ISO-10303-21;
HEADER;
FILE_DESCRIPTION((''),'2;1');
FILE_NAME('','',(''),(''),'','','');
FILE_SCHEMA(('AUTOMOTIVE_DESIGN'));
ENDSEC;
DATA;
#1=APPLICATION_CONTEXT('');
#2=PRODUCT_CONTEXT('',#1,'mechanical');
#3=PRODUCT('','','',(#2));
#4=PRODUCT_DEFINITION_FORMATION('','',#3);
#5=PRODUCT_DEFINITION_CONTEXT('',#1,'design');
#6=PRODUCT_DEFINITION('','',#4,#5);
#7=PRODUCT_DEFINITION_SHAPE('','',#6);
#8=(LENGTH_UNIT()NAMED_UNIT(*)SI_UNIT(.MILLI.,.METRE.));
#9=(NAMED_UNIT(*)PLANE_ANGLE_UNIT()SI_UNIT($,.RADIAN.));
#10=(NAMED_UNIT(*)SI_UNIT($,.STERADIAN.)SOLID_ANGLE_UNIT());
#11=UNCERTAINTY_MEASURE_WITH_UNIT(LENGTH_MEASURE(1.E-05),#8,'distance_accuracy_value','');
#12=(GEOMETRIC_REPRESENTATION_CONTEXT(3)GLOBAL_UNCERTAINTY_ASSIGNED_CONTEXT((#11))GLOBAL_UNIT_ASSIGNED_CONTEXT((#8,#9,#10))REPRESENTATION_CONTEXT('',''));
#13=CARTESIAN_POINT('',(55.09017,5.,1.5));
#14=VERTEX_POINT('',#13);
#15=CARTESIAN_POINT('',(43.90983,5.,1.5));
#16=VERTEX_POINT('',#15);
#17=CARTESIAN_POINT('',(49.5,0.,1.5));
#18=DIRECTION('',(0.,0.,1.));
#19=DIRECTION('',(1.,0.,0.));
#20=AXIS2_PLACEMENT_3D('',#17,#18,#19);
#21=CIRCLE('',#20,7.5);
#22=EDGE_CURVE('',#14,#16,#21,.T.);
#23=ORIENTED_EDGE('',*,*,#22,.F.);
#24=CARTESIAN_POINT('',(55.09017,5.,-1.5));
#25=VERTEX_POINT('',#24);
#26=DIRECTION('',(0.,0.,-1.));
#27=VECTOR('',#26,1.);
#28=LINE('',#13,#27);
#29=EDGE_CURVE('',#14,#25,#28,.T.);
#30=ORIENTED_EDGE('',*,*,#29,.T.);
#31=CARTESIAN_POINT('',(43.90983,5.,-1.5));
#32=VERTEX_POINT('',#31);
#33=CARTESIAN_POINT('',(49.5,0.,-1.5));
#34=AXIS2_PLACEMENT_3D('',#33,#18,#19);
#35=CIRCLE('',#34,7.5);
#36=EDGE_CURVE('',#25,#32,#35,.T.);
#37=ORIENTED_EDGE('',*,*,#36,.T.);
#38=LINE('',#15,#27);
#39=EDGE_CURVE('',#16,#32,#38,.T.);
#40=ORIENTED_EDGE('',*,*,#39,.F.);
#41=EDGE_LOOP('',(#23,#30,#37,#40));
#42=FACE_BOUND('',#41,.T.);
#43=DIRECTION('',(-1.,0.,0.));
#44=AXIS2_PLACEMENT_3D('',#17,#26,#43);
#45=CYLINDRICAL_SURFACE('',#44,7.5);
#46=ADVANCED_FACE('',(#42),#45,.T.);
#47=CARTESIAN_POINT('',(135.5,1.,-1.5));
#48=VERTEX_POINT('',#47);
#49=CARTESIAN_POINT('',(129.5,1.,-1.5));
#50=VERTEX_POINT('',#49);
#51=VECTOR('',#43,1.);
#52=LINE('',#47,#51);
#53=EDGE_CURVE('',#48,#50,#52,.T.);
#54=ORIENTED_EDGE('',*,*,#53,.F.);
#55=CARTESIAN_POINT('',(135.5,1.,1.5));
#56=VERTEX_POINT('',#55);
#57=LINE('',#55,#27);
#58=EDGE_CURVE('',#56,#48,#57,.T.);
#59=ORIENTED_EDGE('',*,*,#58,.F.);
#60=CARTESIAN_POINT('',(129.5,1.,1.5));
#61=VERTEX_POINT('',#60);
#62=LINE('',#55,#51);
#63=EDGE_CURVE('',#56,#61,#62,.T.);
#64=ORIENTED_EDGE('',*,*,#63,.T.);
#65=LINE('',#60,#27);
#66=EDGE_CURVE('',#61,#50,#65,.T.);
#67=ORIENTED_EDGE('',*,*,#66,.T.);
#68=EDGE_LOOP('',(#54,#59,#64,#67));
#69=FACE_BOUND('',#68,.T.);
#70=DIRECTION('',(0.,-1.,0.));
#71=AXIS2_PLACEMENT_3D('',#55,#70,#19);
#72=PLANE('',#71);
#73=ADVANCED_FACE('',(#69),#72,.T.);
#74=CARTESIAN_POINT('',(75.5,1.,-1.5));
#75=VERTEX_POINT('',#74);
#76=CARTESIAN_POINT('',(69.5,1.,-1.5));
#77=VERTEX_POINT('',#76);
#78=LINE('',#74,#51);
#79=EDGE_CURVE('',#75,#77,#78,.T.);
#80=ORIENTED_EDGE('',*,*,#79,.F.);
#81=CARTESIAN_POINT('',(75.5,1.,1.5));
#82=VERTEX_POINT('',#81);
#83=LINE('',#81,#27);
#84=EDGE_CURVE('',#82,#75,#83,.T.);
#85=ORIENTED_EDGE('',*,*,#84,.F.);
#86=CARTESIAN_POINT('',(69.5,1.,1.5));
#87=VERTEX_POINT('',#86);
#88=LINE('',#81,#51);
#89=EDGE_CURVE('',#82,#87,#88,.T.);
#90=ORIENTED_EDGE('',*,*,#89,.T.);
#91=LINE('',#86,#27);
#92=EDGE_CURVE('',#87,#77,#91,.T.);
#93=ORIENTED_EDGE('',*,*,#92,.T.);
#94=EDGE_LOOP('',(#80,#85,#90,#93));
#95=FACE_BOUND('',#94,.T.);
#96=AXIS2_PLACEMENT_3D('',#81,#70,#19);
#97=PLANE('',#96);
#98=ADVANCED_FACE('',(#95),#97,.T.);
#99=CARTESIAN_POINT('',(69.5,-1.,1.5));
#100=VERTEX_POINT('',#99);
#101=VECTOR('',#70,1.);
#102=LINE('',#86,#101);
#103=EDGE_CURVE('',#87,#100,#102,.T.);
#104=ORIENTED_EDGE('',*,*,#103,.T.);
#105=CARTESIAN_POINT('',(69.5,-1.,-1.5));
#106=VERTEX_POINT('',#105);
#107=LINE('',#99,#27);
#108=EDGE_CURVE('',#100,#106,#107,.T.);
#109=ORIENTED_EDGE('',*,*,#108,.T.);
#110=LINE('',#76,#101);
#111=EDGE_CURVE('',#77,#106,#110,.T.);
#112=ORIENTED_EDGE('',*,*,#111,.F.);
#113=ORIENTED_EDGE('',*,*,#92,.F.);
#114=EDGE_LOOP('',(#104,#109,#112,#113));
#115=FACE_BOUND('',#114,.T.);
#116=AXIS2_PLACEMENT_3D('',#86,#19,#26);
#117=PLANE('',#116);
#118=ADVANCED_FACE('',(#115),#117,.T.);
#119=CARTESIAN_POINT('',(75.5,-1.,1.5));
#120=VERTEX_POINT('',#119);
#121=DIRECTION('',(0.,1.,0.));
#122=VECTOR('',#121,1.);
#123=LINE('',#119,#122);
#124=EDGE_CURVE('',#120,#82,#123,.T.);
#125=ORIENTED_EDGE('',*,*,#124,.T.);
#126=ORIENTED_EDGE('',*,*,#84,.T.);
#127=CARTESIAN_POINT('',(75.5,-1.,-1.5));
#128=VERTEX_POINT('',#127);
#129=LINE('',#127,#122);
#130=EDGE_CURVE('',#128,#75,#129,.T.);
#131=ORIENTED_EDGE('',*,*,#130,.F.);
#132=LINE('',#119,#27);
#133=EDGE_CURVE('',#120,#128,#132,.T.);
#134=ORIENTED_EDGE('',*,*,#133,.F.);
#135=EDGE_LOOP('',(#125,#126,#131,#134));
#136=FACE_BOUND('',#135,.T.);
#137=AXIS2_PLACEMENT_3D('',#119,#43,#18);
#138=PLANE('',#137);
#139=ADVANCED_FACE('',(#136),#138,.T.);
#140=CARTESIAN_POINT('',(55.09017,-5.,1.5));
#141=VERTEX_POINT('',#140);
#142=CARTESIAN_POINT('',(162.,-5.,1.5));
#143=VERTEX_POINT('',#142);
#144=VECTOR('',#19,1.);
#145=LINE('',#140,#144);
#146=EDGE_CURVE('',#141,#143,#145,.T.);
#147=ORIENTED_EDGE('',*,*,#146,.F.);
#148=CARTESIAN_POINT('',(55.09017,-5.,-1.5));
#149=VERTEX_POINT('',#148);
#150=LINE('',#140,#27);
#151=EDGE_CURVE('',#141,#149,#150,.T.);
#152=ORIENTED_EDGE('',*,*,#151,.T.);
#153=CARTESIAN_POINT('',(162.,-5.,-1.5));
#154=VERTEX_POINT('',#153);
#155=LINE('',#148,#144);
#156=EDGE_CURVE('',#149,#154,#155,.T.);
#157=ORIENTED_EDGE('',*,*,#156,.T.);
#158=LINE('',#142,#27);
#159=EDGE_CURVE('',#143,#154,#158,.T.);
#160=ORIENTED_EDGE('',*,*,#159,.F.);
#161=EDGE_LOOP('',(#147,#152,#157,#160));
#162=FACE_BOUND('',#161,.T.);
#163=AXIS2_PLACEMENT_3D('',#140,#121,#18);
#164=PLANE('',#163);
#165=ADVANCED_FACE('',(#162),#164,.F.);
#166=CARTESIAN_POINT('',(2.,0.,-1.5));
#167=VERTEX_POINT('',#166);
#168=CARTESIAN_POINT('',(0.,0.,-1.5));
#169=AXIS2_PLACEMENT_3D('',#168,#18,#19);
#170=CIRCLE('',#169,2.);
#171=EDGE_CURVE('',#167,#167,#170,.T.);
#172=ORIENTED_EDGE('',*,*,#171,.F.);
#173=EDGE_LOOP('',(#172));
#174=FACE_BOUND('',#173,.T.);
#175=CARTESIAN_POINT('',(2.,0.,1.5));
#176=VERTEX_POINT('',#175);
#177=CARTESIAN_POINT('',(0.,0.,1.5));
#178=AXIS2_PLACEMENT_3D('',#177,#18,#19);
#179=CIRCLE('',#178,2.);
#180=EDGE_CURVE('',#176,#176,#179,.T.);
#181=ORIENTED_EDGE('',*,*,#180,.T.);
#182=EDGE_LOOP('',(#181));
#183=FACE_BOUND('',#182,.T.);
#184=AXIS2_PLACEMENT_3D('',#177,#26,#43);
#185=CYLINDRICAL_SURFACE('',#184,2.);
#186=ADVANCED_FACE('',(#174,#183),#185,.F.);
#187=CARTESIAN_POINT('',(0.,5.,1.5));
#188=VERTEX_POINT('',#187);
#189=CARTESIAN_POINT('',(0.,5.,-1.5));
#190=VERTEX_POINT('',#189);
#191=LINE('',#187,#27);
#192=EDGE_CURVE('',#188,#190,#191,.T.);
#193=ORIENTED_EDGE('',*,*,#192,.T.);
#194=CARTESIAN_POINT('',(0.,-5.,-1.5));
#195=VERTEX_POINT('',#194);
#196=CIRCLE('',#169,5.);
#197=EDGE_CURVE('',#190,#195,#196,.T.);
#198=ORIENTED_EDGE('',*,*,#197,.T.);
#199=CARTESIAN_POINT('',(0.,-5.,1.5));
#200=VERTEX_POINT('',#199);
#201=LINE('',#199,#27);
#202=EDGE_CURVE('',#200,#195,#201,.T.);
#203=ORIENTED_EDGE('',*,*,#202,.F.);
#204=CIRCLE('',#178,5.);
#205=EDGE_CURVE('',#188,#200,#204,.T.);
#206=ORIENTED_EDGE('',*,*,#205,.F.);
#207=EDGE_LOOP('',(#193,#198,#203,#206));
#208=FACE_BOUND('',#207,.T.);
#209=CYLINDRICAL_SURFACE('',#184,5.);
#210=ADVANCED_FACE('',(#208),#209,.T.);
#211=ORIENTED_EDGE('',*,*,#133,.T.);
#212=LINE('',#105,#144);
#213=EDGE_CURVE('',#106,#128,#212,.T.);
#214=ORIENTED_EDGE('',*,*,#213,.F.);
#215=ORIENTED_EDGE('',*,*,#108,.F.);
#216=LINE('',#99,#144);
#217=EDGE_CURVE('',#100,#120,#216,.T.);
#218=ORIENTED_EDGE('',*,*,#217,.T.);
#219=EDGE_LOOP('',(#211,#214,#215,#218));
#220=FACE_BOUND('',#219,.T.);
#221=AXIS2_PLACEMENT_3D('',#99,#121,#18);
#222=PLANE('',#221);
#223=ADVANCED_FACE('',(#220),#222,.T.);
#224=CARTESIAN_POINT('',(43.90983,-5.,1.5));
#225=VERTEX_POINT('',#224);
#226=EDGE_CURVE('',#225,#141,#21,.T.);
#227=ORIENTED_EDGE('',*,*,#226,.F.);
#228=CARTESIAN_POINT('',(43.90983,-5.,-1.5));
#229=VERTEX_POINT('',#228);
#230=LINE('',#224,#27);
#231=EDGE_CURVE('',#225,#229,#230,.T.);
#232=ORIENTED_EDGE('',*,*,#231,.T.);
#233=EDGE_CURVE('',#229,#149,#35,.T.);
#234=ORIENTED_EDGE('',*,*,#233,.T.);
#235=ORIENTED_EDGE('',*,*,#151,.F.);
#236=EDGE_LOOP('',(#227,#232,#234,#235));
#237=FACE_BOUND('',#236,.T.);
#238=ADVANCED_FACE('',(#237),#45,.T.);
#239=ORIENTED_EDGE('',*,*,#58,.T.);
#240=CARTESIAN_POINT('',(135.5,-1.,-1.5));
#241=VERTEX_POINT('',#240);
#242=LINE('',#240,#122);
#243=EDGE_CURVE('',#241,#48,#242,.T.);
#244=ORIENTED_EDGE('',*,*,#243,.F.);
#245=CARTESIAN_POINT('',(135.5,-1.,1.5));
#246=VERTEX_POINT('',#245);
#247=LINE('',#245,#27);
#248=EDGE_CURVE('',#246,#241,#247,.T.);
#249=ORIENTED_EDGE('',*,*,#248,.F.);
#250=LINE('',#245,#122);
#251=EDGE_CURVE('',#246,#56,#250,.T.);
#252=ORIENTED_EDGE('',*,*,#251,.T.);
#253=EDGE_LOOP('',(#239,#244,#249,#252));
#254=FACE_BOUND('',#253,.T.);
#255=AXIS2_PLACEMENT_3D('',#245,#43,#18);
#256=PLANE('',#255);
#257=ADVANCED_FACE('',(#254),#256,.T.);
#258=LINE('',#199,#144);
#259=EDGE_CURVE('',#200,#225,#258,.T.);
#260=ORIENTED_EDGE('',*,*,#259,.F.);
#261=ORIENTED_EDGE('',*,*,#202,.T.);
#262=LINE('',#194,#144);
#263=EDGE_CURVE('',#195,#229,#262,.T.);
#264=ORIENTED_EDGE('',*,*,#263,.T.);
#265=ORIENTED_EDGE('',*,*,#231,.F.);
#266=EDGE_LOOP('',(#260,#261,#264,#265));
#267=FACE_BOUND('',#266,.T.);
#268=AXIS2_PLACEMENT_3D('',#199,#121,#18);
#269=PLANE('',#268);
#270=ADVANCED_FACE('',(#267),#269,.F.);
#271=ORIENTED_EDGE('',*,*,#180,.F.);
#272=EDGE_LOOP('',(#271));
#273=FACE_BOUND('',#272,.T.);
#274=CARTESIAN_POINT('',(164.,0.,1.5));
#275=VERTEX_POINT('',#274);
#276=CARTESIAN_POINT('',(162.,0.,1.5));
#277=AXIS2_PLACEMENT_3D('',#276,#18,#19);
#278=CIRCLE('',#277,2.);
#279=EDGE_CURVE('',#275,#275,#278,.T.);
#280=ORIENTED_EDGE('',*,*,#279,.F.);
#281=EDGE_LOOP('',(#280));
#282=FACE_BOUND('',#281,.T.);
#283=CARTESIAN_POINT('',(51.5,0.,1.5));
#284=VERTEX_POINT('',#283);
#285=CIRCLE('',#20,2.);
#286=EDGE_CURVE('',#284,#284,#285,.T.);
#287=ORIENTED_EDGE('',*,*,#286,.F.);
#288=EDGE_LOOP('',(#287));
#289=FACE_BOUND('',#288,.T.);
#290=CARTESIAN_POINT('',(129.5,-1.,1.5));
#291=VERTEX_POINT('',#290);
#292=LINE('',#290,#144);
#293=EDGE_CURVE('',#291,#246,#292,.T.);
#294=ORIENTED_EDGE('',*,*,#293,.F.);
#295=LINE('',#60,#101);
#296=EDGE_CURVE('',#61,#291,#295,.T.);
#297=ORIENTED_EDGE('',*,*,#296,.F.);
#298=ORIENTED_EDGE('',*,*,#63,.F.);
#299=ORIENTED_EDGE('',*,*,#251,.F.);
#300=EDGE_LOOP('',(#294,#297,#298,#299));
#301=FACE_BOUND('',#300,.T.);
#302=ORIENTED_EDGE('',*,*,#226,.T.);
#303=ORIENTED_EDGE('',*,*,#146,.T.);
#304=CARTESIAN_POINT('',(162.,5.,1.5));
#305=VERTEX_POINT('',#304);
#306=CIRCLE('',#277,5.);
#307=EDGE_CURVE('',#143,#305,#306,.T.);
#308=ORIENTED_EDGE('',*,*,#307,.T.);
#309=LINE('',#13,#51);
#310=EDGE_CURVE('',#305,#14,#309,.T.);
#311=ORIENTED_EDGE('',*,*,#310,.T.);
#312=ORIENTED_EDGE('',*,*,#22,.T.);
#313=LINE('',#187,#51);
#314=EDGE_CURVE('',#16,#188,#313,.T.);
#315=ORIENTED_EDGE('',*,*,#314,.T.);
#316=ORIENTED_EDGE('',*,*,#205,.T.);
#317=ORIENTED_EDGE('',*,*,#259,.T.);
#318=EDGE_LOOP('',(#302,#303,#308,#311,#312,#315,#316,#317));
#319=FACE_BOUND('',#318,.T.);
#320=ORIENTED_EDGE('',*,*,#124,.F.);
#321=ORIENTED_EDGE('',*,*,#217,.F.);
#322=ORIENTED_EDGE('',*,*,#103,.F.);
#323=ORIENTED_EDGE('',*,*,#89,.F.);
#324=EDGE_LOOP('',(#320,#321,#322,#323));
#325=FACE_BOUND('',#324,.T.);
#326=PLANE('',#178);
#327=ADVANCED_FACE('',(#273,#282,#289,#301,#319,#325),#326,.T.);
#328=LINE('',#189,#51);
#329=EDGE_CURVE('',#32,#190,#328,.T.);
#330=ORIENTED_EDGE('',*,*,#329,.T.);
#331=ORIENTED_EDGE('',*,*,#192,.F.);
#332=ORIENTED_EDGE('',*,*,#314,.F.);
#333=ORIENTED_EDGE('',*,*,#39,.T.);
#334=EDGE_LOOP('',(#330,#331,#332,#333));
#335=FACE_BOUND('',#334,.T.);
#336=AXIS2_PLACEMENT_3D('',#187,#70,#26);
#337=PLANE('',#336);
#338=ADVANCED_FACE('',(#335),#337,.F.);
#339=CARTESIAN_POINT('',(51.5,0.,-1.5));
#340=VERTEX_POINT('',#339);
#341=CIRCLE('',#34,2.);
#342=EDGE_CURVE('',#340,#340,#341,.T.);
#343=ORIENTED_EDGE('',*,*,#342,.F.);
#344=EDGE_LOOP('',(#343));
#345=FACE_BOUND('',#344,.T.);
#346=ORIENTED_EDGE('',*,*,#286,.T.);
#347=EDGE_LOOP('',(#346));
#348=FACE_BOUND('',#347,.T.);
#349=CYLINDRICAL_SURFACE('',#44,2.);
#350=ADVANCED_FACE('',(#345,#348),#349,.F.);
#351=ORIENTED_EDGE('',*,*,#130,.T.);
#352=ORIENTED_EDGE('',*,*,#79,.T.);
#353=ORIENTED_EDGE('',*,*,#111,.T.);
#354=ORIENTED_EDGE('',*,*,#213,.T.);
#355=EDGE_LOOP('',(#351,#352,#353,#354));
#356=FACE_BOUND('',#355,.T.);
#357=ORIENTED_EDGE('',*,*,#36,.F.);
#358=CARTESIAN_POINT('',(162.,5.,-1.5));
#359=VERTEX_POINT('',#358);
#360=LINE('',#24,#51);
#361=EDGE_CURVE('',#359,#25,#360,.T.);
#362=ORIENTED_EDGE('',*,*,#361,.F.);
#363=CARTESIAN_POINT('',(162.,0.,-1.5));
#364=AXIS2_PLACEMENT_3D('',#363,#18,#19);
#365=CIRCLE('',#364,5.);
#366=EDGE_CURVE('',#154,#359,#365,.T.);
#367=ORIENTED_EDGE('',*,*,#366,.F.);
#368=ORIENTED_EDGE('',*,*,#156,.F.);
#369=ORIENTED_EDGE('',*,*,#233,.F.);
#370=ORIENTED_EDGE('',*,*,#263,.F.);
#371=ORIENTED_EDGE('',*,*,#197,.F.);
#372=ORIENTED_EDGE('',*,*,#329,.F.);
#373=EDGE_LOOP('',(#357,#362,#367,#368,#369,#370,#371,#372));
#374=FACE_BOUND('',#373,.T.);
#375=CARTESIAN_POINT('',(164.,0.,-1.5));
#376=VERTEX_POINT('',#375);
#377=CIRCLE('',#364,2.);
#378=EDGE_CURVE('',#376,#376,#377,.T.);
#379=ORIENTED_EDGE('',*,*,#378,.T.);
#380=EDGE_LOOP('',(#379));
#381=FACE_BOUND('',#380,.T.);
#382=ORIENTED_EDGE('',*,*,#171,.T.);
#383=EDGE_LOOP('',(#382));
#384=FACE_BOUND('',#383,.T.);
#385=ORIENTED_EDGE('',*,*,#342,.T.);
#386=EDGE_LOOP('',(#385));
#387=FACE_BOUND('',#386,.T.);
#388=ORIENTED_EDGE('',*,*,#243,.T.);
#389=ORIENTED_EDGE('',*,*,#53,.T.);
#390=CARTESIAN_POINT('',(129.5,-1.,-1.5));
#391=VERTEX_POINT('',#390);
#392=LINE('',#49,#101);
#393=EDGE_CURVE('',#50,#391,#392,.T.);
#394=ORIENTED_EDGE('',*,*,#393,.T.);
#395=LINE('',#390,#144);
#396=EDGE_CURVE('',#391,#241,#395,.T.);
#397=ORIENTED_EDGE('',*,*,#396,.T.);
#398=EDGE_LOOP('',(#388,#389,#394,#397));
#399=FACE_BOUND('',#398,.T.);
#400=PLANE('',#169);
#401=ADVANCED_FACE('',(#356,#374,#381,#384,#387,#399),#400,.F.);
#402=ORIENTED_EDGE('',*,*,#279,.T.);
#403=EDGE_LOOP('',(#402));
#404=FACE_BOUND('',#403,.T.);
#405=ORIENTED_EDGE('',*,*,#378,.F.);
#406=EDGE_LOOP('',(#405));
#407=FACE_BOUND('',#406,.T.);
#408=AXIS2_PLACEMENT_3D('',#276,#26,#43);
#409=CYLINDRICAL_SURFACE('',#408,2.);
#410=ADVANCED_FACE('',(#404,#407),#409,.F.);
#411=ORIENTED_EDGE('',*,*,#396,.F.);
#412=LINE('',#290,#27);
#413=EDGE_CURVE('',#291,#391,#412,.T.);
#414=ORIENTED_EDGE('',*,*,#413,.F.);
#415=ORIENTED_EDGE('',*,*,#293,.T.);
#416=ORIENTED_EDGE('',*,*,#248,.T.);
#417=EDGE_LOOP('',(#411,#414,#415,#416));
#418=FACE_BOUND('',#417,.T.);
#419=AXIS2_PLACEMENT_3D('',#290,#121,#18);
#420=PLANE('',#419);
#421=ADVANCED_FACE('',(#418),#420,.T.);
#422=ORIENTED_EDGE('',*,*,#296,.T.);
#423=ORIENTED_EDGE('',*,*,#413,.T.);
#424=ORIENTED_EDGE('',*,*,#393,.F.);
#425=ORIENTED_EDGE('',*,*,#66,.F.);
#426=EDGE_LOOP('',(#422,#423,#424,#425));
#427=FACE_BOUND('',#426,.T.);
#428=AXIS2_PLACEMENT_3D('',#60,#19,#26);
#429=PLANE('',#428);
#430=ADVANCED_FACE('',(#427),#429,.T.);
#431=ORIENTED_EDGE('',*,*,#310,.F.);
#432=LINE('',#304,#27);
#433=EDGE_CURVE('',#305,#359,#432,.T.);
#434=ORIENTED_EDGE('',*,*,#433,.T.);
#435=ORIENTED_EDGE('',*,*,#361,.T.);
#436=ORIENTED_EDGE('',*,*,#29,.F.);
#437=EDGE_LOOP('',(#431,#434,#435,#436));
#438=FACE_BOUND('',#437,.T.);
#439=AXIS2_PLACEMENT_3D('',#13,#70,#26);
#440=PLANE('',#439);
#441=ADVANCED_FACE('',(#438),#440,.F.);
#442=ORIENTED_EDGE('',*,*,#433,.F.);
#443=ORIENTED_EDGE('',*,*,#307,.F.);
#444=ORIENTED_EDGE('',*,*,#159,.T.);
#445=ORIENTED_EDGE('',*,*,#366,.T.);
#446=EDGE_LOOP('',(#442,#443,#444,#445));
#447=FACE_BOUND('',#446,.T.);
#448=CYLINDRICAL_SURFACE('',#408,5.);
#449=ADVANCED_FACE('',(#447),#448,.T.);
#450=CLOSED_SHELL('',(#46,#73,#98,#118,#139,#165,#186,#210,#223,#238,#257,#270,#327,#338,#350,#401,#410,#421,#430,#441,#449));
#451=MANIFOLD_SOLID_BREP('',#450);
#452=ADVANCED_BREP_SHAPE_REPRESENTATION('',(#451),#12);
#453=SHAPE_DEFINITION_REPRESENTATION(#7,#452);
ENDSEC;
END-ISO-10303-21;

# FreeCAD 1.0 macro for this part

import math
import FreeCAD as App
import Part
import Sketcher
Q = App.Units.Quantity


def add_polygon(sketch, points):
    """Adds a closed chain of lines whose ends are joined by coincident constraints."""
    first, n = sketch.GeometryCount, len(points)
    for a, b in zip(points, points[1:] + points[:1]):
        sketch.addGeometry(Part.LineSegment(App.Vector(*a, 0), App.Vector(*b, 0)), False)
    for i in range(n):
        sketch.addConstraint(Sketcher.Constraint("Coincident", first + i, 2, first + (i + 1) % n, 1))

doc = App.newDocument("Part")
body = doc.addObject("PartDesign::Body", "Body")

# Sketch on XY plane
sketch1 = body.newObject("Sketcher::SketchObject", "Sketch")
sketch1.AttachmentSupport = (doc.getObject("XY_Plane"), [""])
sketch1.MapMode = "FlatFace"
sketch1.addGeometry(Part.LineSegment(App.Vector(43.9, 5, 0), App.Vector(0, 5, 0)), False)  # 0
sketch1.addGeometry(Part.ArcOfCircle(Part.Circle(App.Vector(0, 0, 0), App.Vector(0, 0, 1), 5), math.radians(90), math.radians(270)), False)  # 1
sketch1.addGeometry(Part.LineSegment(App.Vector(0, -5, 0), App.Vector(43.9, -5, 0)), False)  # 2
sketch1.addGeometry(Part.ArcOfCircle(Part.Circle(App.Vector(49.5, 0, 0), App.Vector(0, 0, 1), 7.5), math.radians(-138), math.radians(-42)), False)  # 3
sketch1.addGeometry(Part.LineSegment(App.Vector(55.1, -5, 0), App.Vector(162, -5, 0)), False)  # 4
sketch1.addGeometry(Part.ArcOfCircle(Part.Circle(App.Vector(162, 0, 0), App.Vector(0, 0, 1), 5), math.radians(-90), math.radians(90)), False)  # 5
sketch1.addGeometry(Part.LineSegment(App.Vector(162, 5, 0), App.Vector(55.1, 5, 0)), False)  # 6
sketch1.addGeometry(Part.ArcOfCircle(Part.Circle(App.Vector(49.5, 0, 0), App.Vector(0, 0, 1), 7.5), math.radians(42), math.radians(138)), False)  # 7
sketch1.addGeometry(Part.Circle(App.Vector(162, 0, 0), App.Vector(0, 0, 1), 2), False)  # 8
add_polygon(sketch1, [(129.5, -1), (129.5, 1), (135.5, 1), (135.5, -1)])  # lines 9-12
add_polygon(sketch1, [(69.5, -1), (69.5, 1), (75.5, 1), (75.5, -1)])  # lines 13-16
sketch1.addGeometry(Part.Circle(App.Vector(49.5, 0, 0), App.Vector(0, 0, 1), 2), False)  # 17
sketch1.addGeometry(Part.Circle(App.Vector(0, 0, 0), App.Vector(0, 0, 1), 2), False)  # 18
sketch1.addConstraint(Sketcher.Constraint("Tangent", 0, 2, 1, 1))
sketch1.addConstraint(Sketcher.Constraint("Tangent", 1, 2, 2, 1))
sketch1.addConstraint(Sketcher.Constraint("Coincident", 2, 2, 3, 1))
sketch1.addConstraint(Sketcher.Constraint("Coincident", 3, 2, 4, 1))
sketch1.addConstraint(Sketcher.Constraint("Tangent", 4, 2, 5, 1))
sketch1.addConstraint(Sketcher.Constraint("Tangent", 5, 2, 6, 1))
sketch1.addConstraint(Sketcher.Constraint("Coincident", 6, 2, 7, 1))
sketch1.addConstraint(Sketcher.Constraint("Coincident", 7, 2, 0, 1))
sketch1.addConstraint(Sketcher.Constraint("Horizontal", 0))
sketch1.addConstraint(Sketcher.Constraint("Horizontal", 2))
sketch1.addConstraint(Sketcher.Constraint("Horizontal", 4))
sketch1.addConstraint(Sketcher.Constraint("Horizontal", 6))
sketch1.addConstraint(Sketcher.Constraint("Vertical", 9))
sketch1.addConstraint(Sketcher.Constraint("Horizontal", 10))
sketch1.addConstraint(Sketcher.Constraint("Vertical", 11))
sketch1.addConstraint(Sketcher.Constraint("Horizontal", 12))
sketch1.addConstraint(Sketcher.Constraint("Vertical", 13))
sketch1.addConstraint(Sketcher.Constraint("Horizontal", 14))
sketch1.addConstraint(Sketcher.Constraint("Vertical", 15))
sketch1.addConstraint(Sketcher.Constraint("Horizontal", 16))
sketch1.addConstraint(Sketcher.Constraint("Coincident", 1, 3, -1, 1))
sketch1.addConstraint(Sketcher.Constraint("Coincident", 18, 3, -1, 1))
sketch1.addConstraint(Sketcher.Constraint("Coincident", 7, 3, 3, 3))
sketch1.addConstraint(Sketcher.Constraint("Coincident", 8, 3, 5, 3))
sketch1.addConstraint(Sketcher.Constraint("Coincident", 17, 3, 3, 3))
sketch1.addConstraint(Sketcher.Constraint("Equal", 1, 5))
sketch1.addConstraint(Sketcher.Constraint("Equal", 3, 7))
sketch1.addConstraint(Sketcher.Constraint("Equal", 8, 17))
sketch1.addConstraint(Sketcher.Constraint("Equal", 17, 18))
sketch1.addConstraint(Sketcher.Constraint("Symmetric", 3, 2, 6, 2, -1))
sketch1.addConstraint(Sketcher.Constraint("Horizontal", 10, 2, 13, 2))
sketch1.addConstraint(Sketcher.Constraint("Horizontal", 12, 2, 15, 2))
sketch1.addConstraint(Sketcher.Constraint("Equal", 12, 14))
sketch1.addConstraint(Sketcher.Constraint("Diameter", 8, Q("4 mm")))
sketch1.addConstraint(Sketcher.Constraint("Radius", 1, Q("5 mm")))
sketch1.addConstraint(Sketcher.Constraint("Radius", 3, Q("7.5 mm")))
sketch1.addConstraint(Sketcher.Constraint("DistanceX", 10, 1, 10, 2, Q("6 mm")))
sketch1.addConstraint(Sketcher.Constraint("DistanceY", 9, 1, 9, 2, Q("2 mm")))
sketch1.addConstraint(Sketcher.Constraint("DistanceX", -1, 1, 5, 3, Q("162 mm")))
sketch1.addConstraint(Sketcher.Constraint("DistanceY", -1, 1, 9, 2, Q("1 mm")))
sketch1.addConstraint(Sketcher.Constraint("DistanceX", 3, 3, 13, 2, Q("20 mm")))
sketch1.addConstraint(Sketcher.Constraint("DistanceX", -1, 1, 3, 3, Q("49.5 mm")))
sketch1.addConstraint(Sketcher.Constraint("DistanceX", -1, 1, 9, 2, Q("129.5 mm")))
pad1 = body.newObject("PartDesign::Pad", "Pad")
pad1.Profile = sketch1
pad1.Length = 3
pad1.Midplane = True

doc.recompute()
